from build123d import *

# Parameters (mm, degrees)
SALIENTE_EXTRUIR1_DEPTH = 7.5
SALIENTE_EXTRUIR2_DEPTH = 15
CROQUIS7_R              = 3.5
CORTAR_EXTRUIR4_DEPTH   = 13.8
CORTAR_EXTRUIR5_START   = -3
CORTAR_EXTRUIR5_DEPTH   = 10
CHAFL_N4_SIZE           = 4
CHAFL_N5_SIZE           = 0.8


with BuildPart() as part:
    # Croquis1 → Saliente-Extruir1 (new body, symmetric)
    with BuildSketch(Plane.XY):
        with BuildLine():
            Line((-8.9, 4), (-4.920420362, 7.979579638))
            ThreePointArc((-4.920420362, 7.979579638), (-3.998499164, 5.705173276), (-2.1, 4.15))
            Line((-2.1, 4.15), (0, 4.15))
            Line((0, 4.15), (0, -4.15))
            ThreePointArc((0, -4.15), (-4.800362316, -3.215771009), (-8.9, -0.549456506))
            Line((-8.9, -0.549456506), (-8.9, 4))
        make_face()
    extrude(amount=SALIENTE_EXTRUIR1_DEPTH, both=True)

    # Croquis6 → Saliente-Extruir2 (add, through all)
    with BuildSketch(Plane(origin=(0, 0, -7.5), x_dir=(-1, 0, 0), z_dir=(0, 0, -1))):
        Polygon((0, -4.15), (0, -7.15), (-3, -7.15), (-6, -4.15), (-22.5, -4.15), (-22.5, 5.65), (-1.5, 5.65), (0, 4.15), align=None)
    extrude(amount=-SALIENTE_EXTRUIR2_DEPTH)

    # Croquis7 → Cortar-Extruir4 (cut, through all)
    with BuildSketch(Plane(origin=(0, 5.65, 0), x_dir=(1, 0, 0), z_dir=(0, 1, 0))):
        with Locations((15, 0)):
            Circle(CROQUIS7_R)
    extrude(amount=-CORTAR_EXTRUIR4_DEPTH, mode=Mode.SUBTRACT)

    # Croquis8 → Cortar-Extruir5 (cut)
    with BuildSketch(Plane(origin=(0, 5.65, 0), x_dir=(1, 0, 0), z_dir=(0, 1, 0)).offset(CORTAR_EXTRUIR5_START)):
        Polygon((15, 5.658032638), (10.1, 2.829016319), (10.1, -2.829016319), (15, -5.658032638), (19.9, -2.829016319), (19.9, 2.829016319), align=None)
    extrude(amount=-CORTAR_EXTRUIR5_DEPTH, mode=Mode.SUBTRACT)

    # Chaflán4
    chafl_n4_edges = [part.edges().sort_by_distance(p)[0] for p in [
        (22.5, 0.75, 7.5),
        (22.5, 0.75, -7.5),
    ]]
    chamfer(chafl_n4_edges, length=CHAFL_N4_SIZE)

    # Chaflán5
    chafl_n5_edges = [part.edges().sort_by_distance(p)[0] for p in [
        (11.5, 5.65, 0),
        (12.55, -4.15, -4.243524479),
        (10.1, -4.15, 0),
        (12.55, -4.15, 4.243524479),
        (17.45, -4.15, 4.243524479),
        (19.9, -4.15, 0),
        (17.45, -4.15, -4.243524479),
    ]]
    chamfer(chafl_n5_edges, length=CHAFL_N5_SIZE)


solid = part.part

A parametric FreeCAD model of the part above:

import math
import FreeCAD as App
import Part
import Sketcher
from FreeCAD import Vector
Q = App.Units.Quantity


def edges_at(feature, points):
    """Names of the edges that pass closest to the given points."""
    edges = feature.Shape.Edges
    near = lambda p: min(range(len(edges)), key=lambda i: edges[i].distToShape(Part.Vertex(*p))[0])
    return sorted({f"Edge{near(p) + 1}" for p in points})

doc = App.newDocument("Part")
body = doc.addObject("PartDesign::Body", "Body")

sketch1 = doc.addObject("Sketcher::SketchObject", "Sketch")
body.addObject(sketch1)
sketch1.AttachmentSupport = (doc.XY_Plane, [""])
sketch1.MapMode = "FlatFace"
sketch1.addGeometry([
    Part.LineSegment(Vector(-4.9, 8, 0), Vector(-8.9, 4, 0)),
    Part.LineSegment(Vector(-8.9, 4, 0), Vector(-8.9, -0.5, 0)),
    Part.ArcOfCircle(Part.Circle(Vector(0, 8.7, 0), Vector(0, 0, 1), 12.8), math.radians(-134), math.radians(-90)),
    Part.LineSegment(Vector(0, -4.2, 0), Vector(0, 4.2, 0)),
    Part.LineSegment(Vector(0, 4.2, 0), Vector(-2.1, 4.2, 0)),
    Part.ArcOfCircle(Part.Circle(Vector(0, 8.7, 0), Vector(0, 0, 1), 5), math.radians(-172), math.radians(-115)),
], False)
sketch1.addConstraint([
    Sketcher.Constraint("Coincident", 0, 2, 1, 1),
    Sketcher.Constraint("Coincident", 1, 2, 2, 1),
    Sketcher.Constraint("Coincident", 2, 2, 3, 1),
    Sketcher.Constraint("Coincident", 3, 2, 4, 1),
    Sketcher.Constraint("Coincident", 4, 2, 5, 2),
    Sketcher.Constraint("Coincident", 5, 1, 0, 1),
    Sketcher.Constraint("Vertical", 1),
    Sketcher.Constraint("Vertical", 3),
    Sketcher.Constraint("Horizontal", 4),
    Sketcher.Constraint("Coincident", 5, 3, 2, 3),
    Sketcher.Constraint("Symmetric", 2, 2, 3, 2, -1, 1),
    Sketcher.Constraint("PointOnObject", 2, 3, -2),
    Sketcher.Constraint("Radius", 2, Q("12.8 mm")),
    Sketcher.Constraint("Angle", 0, Q("-135 deg")),
    Sketcher.Constraint("DistanceX", 4, 2, 4, 1, Q("2.1 mm")),
    Sketcher.Constraint("DistanceY", 3, 1, 3, 2, Q("8.3 mm")),
    Sketcher.Constraint("DistanceY", -1, 1, 0, 2, Q("4 mm")),
    Sketcher.Constraint("DistanceX", 0, 2, -1, 1, Q("8.9 mm")),
])
pad1 = doc.addObject("PartDesign::Pad", "Pad")
body.addObject(pad1)
pad1.Profile = sketch1
pad1.Length = 15
pad1.Midplane = True

sketch2 = doc.addObject("Sketcher::SketchObject", "Sketch001")
body.addObject(sketch2)
sketch2.AttachmentSupport = (doc.XY_Plane, [""])
sketch2.MapMode = "FlatFace"
sketch2.AttachmentOffset = App.Placement(Vector(0, 0, -7.5), App.Rotation())
sketch2.addGeometry([
    Part.LineSegment(Vector(0, -7.2, 0), Vector(0, 4.2, 0)),
    Part.LineSegment(Vector(0, 4.2, 0), Vector(1.5, 5.7, 0)),
    Part.LineSegment(Vector(1.5, 5.7, 0), Vector(22.5, 5.7, 0)),
    Part.LineSegment(Vector(22.5, 5.7, 0), Vector(22.5, -4.2, 0)),
    Part.LineSegment(Vector(22.5, -4.2, 0), Vector(6, -4.2, 0)),
    Part.LineSegment(Vector(6, -4.2, 0), Vector(3, -7.2, 0)),
    Part.LineSegment(Vector(3, -7.2, 0), Vector(0, -7.2, 0)),
], False)
sketch2.addConstraint([
    Sketcher.Constraint("Coincident", 0, 2, 1, 1),
    Sketcher.Constraint("Coincident", 1, 2, 2, 1),
    Sketcher.Constraint("Coincident", 2, 2, 3, 1),
    Sketcher.Constraint("Coincident", 3, 2, 4, 1),
    Sketcher.Constraint("Coincident", 4, 2, 5, 1),
    Sketcher.Constraint("Coincident", 5, 2, 6, 1),
    Sketcher.Constraint("Coincident", 6, 2, 0, 1),
    Sketcher.Constraint("Vertical", 0),
    Sketcher.Constraint("Horizontal", 2),
    Sketcher.Constraint("Vertical", 3),
    Sketcher.Constraint("Horizontal", 4),
    Sketcher.Constraint("Horizontal", 6),
    Sketcher.Constraint("PointOnObject", 0, 2, -2),
    Sketcher.Constraint("Parallel", 1, 5),
    Sketcher.Constraint("DistanceX", 2, 1, 2, 2, Q("21 mm")),
    Sketcher.Constraint("DistanceX", 6, 2, 6, 1, Q("3 mm")),
    Sketcher.Constraint("Angle", 1, Q("45 deg")),
    Sketcher.Constraint("DistanceX", 4, 2, 4, 1, Q("16.5 mm")),
    Sketcher.Constraint("DistanceY", 0, 1, 0, 2, Q("11.3 mm")),
    Sketcher.Constraint("DistanceX", -1, 1, 4, 2, Q("6 mm")),
    Sketcher.Constraint("DistanceY", -1, 1, 0, 2, Q("4.15 mm")),
])
pad2 = doc.addObject("PartDesign::Pad", "Pad001")
body.addObject(pad2)
pad2.Profile = sketch2
pad2.Length = 15

sketch3 = doc.addObject("Sketcher::SketchObject", "Sketch002")
body.addObject(sketch3)
sketch3.AttachmentSupport = (doc.XZ_Plane, [""])
sketch3.MapMode = "FlatFace"
sketch3.AttachmentOffset = App.Placement(Vector(0, 0, -5.65), App.Rotation())
sketch3.addGeometry(Part.Circle(Vector(15, 0, 0), Vector(0, 0, 1), 3.5), False)
sketch3.addConstraint([
    Sketcher.Constraint("PointOnObject", 0, 3, -1),
    Sketcher.Constraint("Diameter", 0, Q("7 mm")),
    Sketcher.Constraint("DistanceX", -1, 1, 0, 3, Q("15 mm")),
])
pocket1 = doc.addObject("PartDesign::Pocket", "Pocket")
body.addObject(pocket1)
pocket1.Profile = sketch3
pocket1.Type = "ThroughAll"
pocket1.Reversed = True

sketch4 = doc.addObject("Sketcher::SketchObject", "Sketch003")
body.addObject(sketch4)
sketch4.AttachmentSupport = (doc.XZ_Plane, [""])
sketch4.MapMode = "FlatFace"
sketch4.AttachmentOffset = App.Placement(Vector(0, 0, -2.65), App.Rotation())
sketch4.addGeometry([
    Part.LineSegment(Vector(15, -6, 0), Vector(10, -3, 0)),
    Part.LineSegment(Vector(10, -3, 0), Vector(10, 3, 0)),
    Part.LineSegment(Vector(10, 3, 0), Vector(15, 6, 0)),
    Part.LineSegment(Vector(15, 6, 0), Vector(20, 3, 0)),
    Part.LineSegment(Vector(20, 3, 0), Vector(20, -3, 0)),
    Part.LineSegment(Vector(20, -3, 0), Vector(15, -6, 0)),
], False)
sketch4.addConstraint([
    Sketcher.Constraint("Coincident", 0, 2, 1, 1),
    Sketcher.Constraint("Coincident", 1, 2, 2, 1),
    Sketcher.Constraint("Coincident", 2, 2, 3, 1),
    Sketcher.Constraint("Coincident", 3, 2, 4, 1),
    Sketcher.Constraint("Coincident", 4, 2, 5, 1),
    Sketcher.Constraint("Coincident", 5, 2, 0, 1),
    Sketcher.Constraint("Vertical", 1),
    Sketcher.Constraint("Vertical", 4),
    Sketcher.Constraint("Symmetric", 2, 2, 5, 2, -1),
    Sketcher.Constraint("Parallel", 0, 3),
    Sketcher.Constraint("Parallel", 2, 5),
    Sketcher.Constraint("Horizontal", 1, 2, 3, 2),
    Sketcher.Constraint("Horizontal", 0, 2, 4, 2),
    Sketcher.Constraint("Angle", 0, Q("150 deg")),
    Sketcher.Constraint("DistanceX", -1, 1, 2, 2, Q("15 mm")),
    Sketcher.Constraint("DistanceX", -1, 1, 0, 2, Q("10.1 mm")),
    Sketcher.Constraint("DistanceY", 1, 1, 1, 2, Q("5.658033 mm")),
])
pocket2 = doc.addObject("PartDesign::Pocket", "Pocket001")
body.addObject(pocket2)
pocket2.Profile = sketch4
pocket2.Length = 10
pocket2.Reversed = True
doc.recompute()

chamfer = doc.addObject("PartDesign::Chamfer", "Chamfer")
body.addObject(chamfer)
chamfer.Base = (pocket2, edges_at(pocket2, [(22.5, 0.75, 7.5), (22.5, 0.75, -7.5)]))
chamfer.Size = 4
doc.recompute()

chamfer2 = doc.addObject("PartDesign::Chamfer", "Chamfer001")
body.addObject(chamfer2)
chamfer2.Base = (chamfer, edges_at(chamfer, [
    (11.5, 5.65, 0),
    (12.55, -4.15, -4.244),
    (10.1, -4.15, 0),
    (12.55, -4.15, 4.244),
    (17.45, -4.15, 4.244),
    (19.9, -4.15, 0),
    (17.45, -4.15, -4.244),
]))
chamfer2.Size = 0.8

doc.recompute()
